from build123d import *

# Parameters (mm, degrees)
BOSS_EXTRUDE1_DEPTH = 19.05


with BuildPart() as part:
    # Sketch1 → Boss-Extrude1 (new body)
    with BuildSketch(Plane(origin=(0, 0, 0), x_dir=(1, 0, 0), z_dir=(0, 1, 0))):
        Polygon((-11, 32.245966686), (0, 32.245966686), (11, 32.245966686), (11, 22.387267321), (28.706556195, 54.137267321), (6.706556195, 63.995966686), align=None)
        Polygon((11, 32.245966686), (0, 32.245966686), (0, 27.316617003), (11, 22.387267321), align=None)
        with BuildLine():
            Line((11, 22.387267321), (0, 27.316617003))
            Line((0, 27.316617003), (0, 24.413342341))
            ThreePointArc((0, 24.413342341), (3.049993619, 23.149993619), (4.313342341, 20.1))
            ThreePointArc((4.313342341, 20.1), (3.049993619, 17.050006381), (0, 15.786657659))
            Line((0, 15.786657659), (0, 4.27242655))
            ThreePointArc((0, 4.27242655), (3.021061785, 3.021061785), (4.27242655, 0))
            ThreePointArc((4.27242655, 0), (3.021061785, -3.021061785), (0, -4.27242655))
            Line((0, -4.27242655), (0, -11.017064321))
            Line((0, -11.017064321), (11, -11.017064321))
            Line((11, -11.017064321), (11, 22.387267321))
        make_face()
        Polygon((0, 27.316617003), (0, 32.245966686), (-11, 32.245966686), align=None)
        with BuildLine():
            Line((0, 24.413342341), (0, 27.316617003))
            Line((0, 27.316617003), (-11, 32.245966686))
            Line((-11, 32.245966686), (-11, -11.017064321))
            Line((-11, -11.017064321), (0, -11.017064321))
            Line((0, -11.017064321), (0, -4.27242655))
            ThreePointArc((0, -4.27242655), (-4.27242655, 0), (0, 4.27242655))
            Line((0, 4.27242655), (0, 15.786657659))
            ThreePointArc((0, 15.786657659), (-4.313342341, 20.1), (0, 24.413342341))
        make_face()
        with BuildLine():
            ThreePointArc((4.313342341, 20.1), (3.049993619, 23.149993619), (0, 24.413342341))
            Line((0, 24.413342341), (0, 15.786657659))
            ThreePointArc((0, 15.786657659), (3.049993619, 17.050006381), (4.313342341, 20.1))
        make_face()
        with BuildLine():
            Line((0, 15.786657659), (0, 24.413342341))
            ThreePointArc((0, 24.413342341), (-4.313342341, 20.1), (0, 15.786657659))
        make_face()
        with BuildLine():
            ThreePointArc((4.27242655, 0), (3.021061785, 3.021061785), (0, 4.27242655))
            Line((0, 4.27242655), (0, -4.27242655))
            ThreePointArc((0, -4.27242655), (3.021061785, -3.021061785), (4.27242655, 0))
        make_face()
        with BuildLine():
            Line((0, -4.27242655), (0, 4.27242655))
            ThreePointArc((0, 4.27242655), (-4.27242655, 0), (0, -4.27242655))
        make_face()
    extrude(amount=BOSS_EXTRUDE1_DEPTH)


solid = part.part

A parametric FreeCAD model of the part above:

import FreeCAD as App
import Part
import Sketcher
from FreeCAD import Vector


def add_polygon(sketch, points):
    """Adds a closed chain of lines whose ends are joined by coincident constraints."""
    first, n = sketch.GeometryCount, len(points)
    for a, b in zip(points, points[1:] + points[:1]):
        sketch.addGeometry(Part.LineSegment(App.Vector(*a, 0), App.Vector(*b, 0)), False)
    for i in range(n):
        sketch.addConstraint(Sketcher.Constraint("Coincident", first + i, 2, first + (i + 1) % n, 1))

doc = App.newDocument("Part")
params = doc.addObject("Spreadsheet::Sheet", "Params")
for row, (alias, value) in enumerate([
    ("sketch1_width", "22 mm"),
    ("pad1_length", "19.05 mm"),
], start=1):
    params.set(f"A{row}", alias)
    params.set(f"B{row}", "=" + value)
    params.setAlias(f"B{row}", alias)

body = doc.addObject("PartDesign::Body", "Body")

sketch1 = body.newObject("Sketcher::SketchObject", "Sketch")
sketch1.AttachmentSupport = (doc.getObject("XZ_Plane"), [""])
sketch1.MapMode = "FlatFace"
add_polygon(sketch1, [(11, 11.017064), (11, -22.387267), (28.706556, -54.137267), (6.706556, -63.995967), (-11, -32.245967), (-11, 11.017064)])
sketch1.addConstraint(Sketcher.Constraint("Vertical", 0))
sketch1.addConstraint(Sketcher.Constraint("Vertical", 4))
sketch1.addConstraint(Sketcher.Constraint("Horizontal", 5))
sketch1.addConstraint(Sketcher.Constraint("Parallel", 1, 3))
sketch1.addConstraint(Sketcher.Constraint("Equal", 1, 3))
sketch1.addConstraint(Sketcher.Constraint("DistanceX", 5, 1, 5, 2, 22.0))
sketch1.addConstraint(Sketcher.Constraint("DistanceX", -1, 1, 0, 2, 11.0))
sketch1.addConstraint(Sketcher.Constraint("DistanceY", 1, 2, 0, 2, 31.75))
sketch1.addConstraint(Sketcher.Constraint("DistanceY", 0, 2, 0, 1, 33.404332))
sketch1.addConstraint(Sketcher.Constraint("DistanceY", 4, 1, 4, 2, 43.263031))
sketch1.addConstraint(Sketcher.Constraint("Distance", 1, 36.353605))
sketch1.addConstraint(Sketcher.Constraint("DistanceY", 0, 2, -1, 1, 22.387267))
sketch1.setExpression("Constraints[11]", "Params.sketch1_width")
pad1 = body.newObject("PartDesign::Pad", "Pad")
pad1.Profile = sketch1
pad1.setExpression("Length", "Params.pad1_length")
pad1.Reversed = True

doc.recompute()
